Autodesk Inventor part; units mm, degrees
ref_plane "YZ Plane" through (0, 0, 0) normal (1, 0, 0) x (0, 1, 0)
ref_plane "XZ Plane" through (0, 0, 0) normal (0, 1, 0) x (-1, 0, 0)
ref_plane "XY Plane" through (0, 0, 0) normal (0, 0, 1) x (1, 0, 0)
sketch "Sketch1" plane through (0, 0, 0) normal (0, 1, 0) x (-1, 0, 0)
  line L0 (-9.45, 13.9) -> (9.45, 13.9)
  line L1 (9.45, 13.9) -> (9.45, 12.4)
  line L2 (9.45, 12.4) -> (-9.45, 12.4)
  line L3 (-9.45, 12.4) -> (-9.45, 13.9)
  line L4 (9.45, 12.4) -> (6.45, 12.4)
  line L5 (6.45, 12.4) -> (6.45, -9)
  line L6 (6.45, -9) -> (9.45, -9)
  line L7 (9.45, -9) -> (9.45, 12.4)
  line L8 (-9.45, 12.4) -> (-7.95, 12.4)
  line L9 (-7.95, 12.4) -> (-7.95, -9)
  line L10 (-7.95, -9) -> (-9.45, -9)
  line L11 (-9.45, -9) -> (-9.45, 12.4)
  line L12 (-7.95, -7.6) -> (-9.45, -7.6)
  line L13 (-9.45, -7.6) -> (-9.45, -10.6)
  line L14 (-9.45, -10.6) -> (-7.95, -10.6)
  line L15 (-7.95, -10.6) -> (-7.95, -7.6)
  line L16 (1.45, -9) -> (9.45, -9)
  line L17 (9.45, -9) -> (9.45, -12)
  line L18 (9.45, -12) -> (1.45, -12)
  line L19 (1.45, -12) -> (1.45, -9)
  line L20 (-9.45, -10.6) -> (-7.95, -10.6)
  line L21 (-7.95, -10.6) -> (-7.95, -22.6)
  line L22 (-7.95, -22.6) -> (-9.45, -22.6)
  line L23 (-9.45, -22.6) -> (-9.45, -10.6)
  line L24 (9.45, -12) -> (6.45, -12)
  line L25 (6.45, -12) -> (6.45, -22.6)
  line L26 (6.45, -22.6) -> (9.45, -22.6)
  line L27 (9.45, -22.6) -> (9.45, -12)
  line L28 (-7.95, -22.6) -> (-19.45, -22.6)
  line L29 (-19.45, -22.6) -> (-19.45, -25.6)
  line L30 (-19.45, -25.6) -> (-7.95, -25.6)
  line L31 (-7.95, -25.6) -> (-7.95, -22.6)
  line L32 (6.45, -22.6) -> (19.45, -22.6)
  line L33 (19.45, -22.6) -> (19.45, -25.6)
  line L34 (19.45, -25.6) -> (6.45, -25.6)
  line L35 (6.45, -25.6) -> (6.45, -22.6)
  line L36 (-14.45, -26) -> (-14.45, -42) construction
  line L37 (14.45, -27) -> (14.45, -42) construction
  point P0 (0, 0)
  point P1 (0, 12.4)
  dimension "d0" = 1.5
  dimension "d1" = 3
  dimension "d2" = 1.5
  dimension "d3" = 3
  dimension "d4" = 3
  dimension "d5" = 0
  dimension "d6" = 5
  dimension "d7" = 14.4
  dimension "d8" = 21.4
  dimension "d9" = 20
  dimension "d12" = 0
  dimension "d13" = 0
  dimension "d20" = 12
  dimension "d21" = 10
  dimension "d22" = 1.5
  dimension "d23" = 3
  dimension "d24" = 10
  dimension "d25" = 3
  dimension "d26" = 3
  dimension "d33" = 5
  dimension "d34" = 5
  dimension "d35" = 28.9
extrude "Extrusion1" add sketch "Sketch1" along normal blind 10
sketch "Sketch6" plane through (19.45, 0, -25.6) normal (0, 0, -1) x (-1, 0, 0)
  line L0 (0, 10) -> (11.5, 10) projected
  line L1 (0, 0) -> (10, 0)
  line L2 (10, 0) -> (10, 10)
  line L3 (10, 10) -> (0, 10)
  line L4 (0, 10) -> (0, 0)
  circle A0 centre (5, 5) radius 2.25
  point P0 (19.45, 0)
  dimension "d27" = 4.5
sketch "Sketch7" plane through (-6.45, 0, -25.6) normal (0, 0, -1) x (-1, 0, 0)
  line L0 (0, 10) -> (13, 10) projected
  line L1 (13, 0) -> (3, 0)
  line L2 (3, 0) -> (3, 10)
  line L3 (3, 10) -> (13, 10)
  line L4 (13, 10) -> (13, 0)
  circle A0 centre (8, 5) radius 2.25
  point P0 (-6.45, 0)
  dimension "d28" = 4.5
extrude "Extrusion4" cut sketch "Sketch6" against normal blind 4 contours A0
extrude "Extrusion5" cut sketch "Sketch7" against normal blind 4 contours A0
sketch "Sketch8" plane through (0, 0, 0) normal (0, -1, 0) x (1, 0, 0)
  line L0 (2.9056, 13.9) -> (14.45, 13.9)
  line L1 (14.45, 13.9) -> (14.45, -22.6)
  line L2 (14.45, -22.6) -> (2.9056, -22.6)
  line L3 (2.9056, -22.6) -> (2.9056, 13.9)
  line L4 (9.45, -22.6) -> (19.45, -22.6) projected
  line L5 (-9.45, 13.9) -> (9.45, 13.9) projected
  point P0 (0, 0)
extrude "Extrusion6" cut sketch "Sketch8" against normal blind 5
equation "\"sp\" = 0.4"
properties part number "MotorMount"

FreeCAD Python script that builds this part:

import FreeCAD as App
import Part
import Sketcher

V = App.Vector
Q = App.Units.Quantity


def add_polygon(sketch, points):
    """Adds a closed chain of lines whose ends are joined by coincident constraints."""
    first, n = sketch.GeometryCount, len(points)
    for a, b in zip(points, points[1:] + points[:1]):
        sketch.addGeometry(Part.LineSegment(App.Vector(*a, 0), App.Vector(*b, 0)), False)
    for i in range(n):
        sketch.addConstraint(Sketcher.Constraint("Coincident", first + i, 2, first + (i + 1) % n, 1))

doc = App.newDocument("Part")
body = doc.addObject("PartDesign::Body", "Body")

sketch1 = doc.addObject("Sketcher::SketchObject", "Sketch")
body.addObject(sketch1)
sketch1.AttachmentSupport = (doc.XZ_Plane, [""])
sketch1.MapMode = "FlatFace"
add_polygon(sketch1, [(-9.4, 13.9), (9.4, 13.9), (9.4, -22.6), (19.4, -22.6), (19.4, -25.6), (8, -25.6), (8, 12.4), (-6.5, 12.4), (-6.5, -9), (-1.4, -9), (-1.4, -12), (-6.5, -12), (-6.5, -25.6), (-19.4, -25.6), (-19.4, -22.6), (-9.4, -22.6)])
sketch1.addConstraint([
    Sketcher.Constraint("Horizontal", 0),
    Sketcher.Constraint("Vertical", 1),
    Sketcher.Constraint("Horizontal", 2),
    Sketcher.Constraint("Vertical", 3),
    Sketcher.Constraint("Horizontal", 4),
    Sketcher.Constraint("Vertical", 5),
    Sketcher.Constraint("Horizontal", 6),
    Sketcher.Constraint("Vertical", 7),
    Sketcher.Constraint("Horizontal", 8),
    Sketcher.Constraint("Vertical", 9),
    Sketcher.Constraint("Horizontal", 10),
    Sketcher.Constraint("Vertical", 11),
    Sketcher.Constraint("Horizontal", 12),
    Sketcher.Constraint("Vertical", 13),
    Sketcher.Constraint("Horizontal", 14),
    Sketcher.Constraint("Vertical", 15),
    Sketcher.Constraint("Symmetric", 3, 2, 12, 2, -2),
    Sketcher.Constraint("Symmetric", 1, 2, 14, 2, -2),
    Sketcher.Constraint("Vertical", 7, 2, 10, 2),
    Sketcher.Constraint("Equal", 3, 9),
    Sketcher.Constraint("DistanceX", 2, 1, 2, 2, Q("10 mm")),
    Sketcher.Constraint("DistanceX", 8, 1, 8, 2, Q("5 mm")),
    Sketcher.Constraint("DistanceY", 3, 2, 3, 1, Q("3 mm")),
    Sketcher.Constraint("DistanceX", 6, 2, 6, 1, Q("14.4 mm")),
    Sketcher.Constraint("DistanceY", 7, 2, 7, 1, Q("21.4 mm")),
    Sketcher.Constraint("DistanceY", 9, 2, -1, 1, Q("12 mm")),
    Sketcher.Constraint("DistanceX", 14, 2, 11, 2, Q("3 mm")),
    Sketcher.Constraint("DistanceX", 4, 2, 1, 2, Q("1.5 mm")),
    Sketcher.Constraint("DistanceY", 5, 2, 0, 2, Q("1.5 mm")),
    Sketcher.Constraint("DistanceY", 5, 1, 5, 2, Q("38 mm")),
])
pad1 = doc.addObject("PartDesign::Pad", "Pad")
body.addObject(pad1)
pad1.Profile = sketch1
pad1.Length = 10
pad1.Reversed = True

sketch2 = doc.addObject("Sketcher::SketchObject", "Sketch001")
body.addObject(sketch2)
sketch2.AttachmentSupport = (doc.XY_Plane, [""])
sketch2.MapMode = "FlatFace"
sketch2.AttachmentOffset = App.Placement(V(0, 0, -25.6), App.Rotation())
sketch2.addGeometry(Part.Circle(V(14.4, 5, 0), V(0, 0, 1), 2.2), False)
sketch2.addConstraint([
    Sketcher.Constraint("Diameter", 0, Q("4.5 mm")),
    Sketcher.Constraint("DistanceY", -1, 1, 0, 3, Q("5 mm")),
    Sketcher.Constraint("DistanceX", -1, 1, 0, 3, Q("14.45 mm")),
])
pocket1 = doc.addObject("PartDesign::Pocket", "Pocket")
body.addObject(pocket1)
pocket1.Profile = sketch2
pocket1.Length = 4
pocket1.Reversed = True

sketch3 = doc.addObject("Sketcher::SketchObject", "Sketch002")
body.addObject(sketch3)
sketch3.AttachmentSupport = (doc.XY_Plane, [""])
sketch3.MapMode = "FlatFace"
sketch3.AttachmentOffset = App.Placement(V(0, 0, -25.6), App.Rotation())
sketch3.addGeometry(Part.Circle(V(-14.4, 5, 0), V(0, 0, 1), 2.2), False)
sketch3.addConstraint([
    Sketcher.Constraint("Diameter", 0, Q("4.5 mm")),
    Sketcher.Constraint("DistanceY", -1, 1, 0, 3, Q("5 mm")),
    Sketcher.Constraint("DistanceX", 0, 3, -1, 1, Q("14.45 mm")),
])
pocket2 = doc.addObject("PartDesign::Pocket", "Pocket001")
body.addObject(pocket2)
pocket2.Profile = sketch3
pocket2.Length = 4
pocket2.Reversed = True

sketch4 = doc.addObject("Sketcher::SketchObject", "Sketch003")
body.addObject(sketch4)
sketch4.AttachmentSupport = (doc.XZ_Plane, [""])
sketch4.MapMode = "FlatFace"
add_polygon(sketch4, [(14, 14), (3, 14), (3, -23), (14, -23)])
sketch4.addConstraint([
    Sketcher.Constraint("Horizontal", 0),
    Sketcher.Constraint("Vertical", 1),
    Sketcher.Constraint("Horizontal", 2),
    Sketcher.Constraint("Vertical", 3),
    Sketcher.Constraint("DistanceY", 1, 2, 1, 1, Q("36.5 mm")),
    Sketcher.Constraint("DistanceY", -1, 1, 0, 2, Q("13.9 mm")),
    Sketcher.Constraint("DistanceX", -1, 1, 2, 2, Q("14.45 mm")),
    Sketcher.Constraint("DistanceX", 0, 2, 0, 1, Q("11.5444 mm")),
])
pocket3 = doc.addObject("PartDesign::Pocket", "Pocket002")
body.addObject(pocket3)
pocket3.Profile = sketch4
pocket3.Length = 5

doc.recompute()
